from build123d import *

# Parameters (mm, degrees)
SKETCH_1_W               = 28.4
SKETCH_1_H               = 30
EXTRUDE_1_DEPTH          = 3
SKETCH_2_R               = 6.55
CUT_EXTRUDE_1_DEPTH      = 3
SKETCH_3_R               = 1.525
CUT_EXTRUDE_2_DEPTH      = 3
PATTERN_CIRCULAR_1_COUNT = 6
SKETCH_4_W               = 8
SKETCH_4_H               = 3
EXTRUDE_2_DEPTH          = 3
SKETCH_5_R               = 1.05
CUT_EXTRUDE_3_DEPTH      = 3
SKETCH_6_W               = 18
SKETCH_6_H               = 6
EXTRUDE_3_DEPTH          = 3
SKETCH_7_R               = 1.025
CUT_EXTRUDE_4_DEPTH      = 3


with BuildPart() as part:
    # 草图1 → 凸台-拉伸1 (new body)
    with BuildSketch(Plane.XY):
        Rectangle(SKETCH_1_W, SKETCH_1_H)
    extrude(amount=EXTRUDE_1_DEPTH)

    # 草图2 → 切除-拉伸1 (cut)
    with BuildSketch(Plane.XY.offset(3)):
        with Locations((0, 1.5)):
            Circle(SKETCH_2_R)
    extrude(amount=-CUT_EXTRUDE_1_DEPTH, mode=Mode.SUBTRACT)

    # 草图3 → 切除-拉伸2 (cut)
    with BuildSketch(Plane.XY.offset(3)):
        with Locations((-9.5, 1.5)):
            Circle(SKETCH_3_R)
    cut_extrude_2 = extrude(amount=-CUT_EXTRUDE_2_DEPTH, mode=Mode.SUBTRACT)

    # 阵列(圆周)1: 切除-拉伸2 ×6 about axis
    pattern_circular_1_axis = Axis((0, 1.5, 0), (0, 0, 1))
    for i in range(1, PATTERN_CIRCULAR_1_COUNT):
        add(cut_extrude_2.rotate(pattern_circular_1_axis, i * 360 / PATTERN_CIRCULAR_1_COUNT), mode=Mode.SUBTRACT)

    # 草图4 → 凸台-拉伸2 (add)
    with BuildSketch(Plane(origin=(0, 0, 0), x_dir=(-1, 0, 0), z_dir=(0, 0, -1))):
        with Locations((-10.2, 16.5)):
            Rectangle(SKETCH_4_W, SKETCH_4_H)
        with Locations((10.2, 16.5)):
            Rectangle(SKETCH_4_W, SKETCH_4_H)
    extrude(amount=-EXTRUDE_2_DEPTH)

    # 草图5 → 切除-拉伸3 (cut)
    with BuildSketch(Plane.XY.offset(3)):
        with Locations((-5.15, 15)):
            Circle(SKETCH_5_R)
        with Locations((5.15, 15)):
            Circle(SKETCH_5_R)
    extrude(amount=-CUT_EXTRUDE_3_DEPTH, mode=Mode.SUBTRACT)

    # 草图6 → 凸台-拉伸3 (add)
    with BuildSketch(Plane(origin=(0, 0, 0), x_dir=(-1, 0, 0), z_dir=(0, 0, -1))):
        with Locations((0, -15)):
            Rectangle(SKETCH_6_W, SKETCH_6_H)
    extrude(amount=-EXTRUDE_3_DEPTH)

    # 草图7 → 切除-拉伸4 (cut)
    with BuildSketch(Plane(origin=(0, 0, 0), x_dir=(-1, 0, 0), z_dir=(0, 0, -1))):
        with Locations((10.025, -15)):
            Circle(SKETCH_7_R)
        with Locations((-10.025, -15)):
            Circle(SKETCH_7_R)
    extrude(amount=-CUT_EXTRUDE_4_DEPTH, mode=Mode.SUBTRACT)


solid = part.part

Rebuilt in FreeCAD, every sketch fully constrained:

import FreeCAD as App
import Part
import Sketcher
Q = App.Units.Quantity

doc = App.newDocument("Part")
body = doc.addObject("PartDesign::Body", "Body")

sketch1 = body.newObject("Sketcher::SketchObject", "Sketch")
sketch1.AttachmentSupport = (doc.getObject("XY_Plane"), [""])
sketch1.MapMode = "FlatFace"
sketch1.addGeometry([
    Part.LineSegment(App.Vector(-14, 15, 0), App.Vector(-14, -15, 0)),
    Part.LineSegment(App.Vector(-14, -15, 0), App.Vector(14, -15, 0)),
    Part.LineSegment(App.Vector(14, -15, 0), App.Vector(14, 15, 0)),
    Part.LineSegment(App.Vector(14, 15, 0), App.Vector(-14, 15, 0)),
], False)
sketch1.addConstraint([
    Sketcher.Constraint("Coincident", 0, 2, 1, 1),
    Sketcher.Constraint("Coincident", 1, 2, 2, 1),
    Sketcher.Constraint("Coincident", 2, 2, 3, 1),
    Sketcher.Constraint("Coincident", 3, 2, 0, 1),
    Sketcher.Constraint("Vertical", 0),
    Sketcher.Constraint("Horizontal", 1),
    Sketcher.Constraint("Vertical", 2),
    Sketcher.Constraint("Horizontal", 3),
    Sketcher.Constraint("Symmetric", 0, 2, 2, 2, -1, 1),
    Sketcher.Constraint("DistanceY", 0, 2, 0, 1, Q("30 mm")),
    Sketcher.Constraint("DistanceX", 1, 1, 1, 2, Q("28.4 mm")),
])
pad1 = body.newObject("PartDesign::Pad", "Pad")
pad1.Profile = sketch1
pad1.Length = 3

sketch2 = body.newObject("Sketcher::SketchObject", "Sketch001")
sketch2.AttachmentSupport = (doc.getObject("XY_Plane"), [""])
sketch2.MapMode = "FlatFace"
sketch2.AttachmentOffset = App.Placement(App.Vector(0, 0, 3), App.Rotation())
sketch2.addGeometry(Part.Circle(App.Vector(0, 2, 0), App.Vector(0, 0, 1), 7), False)
sketch2.addConstraint([
    Sketcher.Constraint("PointOnObject", 0, 3, -2),
    Sketcher.Constraint("Diameter", 0, Q("13.1 mm")),
    Sketcher.Constraint("DistanceY", -1, 1, 0, 3, Q("1.5 mm")),
])
pocket1 = body.newObject("PartDesign::Pocket", "Pocket")
pocket1.Profile = sketch2
pocket1.Length = 3

sketch3 = body.newObject("Sketcher::SketchObject", "Sketch002")
sketch3.AttachmentSupport = (doc.getObject("XY_Plane"), [""])
sketch3.MapMode = "FlatFace"
sketch3.AttachmentOffset = App.Placement(App.Vector(0, 0, 3), App.Rotation())
sketch3.addGeometry(Part.Circle(App.Vector(-9.5, 1.5, 0), App.Vector(0, 0, 1), 1.5), False)
sketch3.addConstraint([
    Sketcher.Constraint("Diameter", 0, Q("3.05 mm")),
    Sketcher.Constraint("DistanceX", 0, 3, -1, 1, Q("9.5 mm")),
    Sketcher.Constraint("DistanceY", -1, 1, 0, 3, Q("1.5 mm")),
])
pocket2 = body.newObject("PartDesign::Pocket", "Pocket001")
pocket2.Profile = sketch3
pocket2.Length = 3
doc.recompute()

datumline = body.newObject("PartDesign::Line", "DatumLine")
datumline.Placement = App.Placement(App.Vector(0, 1.5, 0), App.Rotation(App.Vector(0, 0, 1), App.Vector(0, 0, 1)))
polarpattern = body.newObject("PartDesign::PolarPattern", "PolarPattern")
polarpattern.Originals = [pocket2]
polarpattern.Axis = (datumline, [""])
polarpattern.Angle = 360
polarpattern.Occurrences = 6
body.Tip = polarpattern

sketch4 = body.newObject("Sketcher::SketchObject", "Sketch003")
sketch4.AttachmentSupport = (doc.getObject("XY_Plane"), [""])
sketch4.MapMode = "FlatFace"
sketch4.addGeometry([
    Part.LineSegment(App.Vector(14.2, 18, 0), App.Vector(14.2, 15, 0)),
    Part.LineSegment(App.Vector(14.2, 15, 0), App.Vector(6.2, 15, 0)),
    Part.LineSegment(App.Vector(6.2, 15, 0), App.Vector(6.2, 18, 0)),
    Part.LineSegment(App.Vector(6.2, 18, 0), App.Vector(14.2, 18, 0)),
    Part.LineSegment(App.Vector(-6.2, 18, 0), App.Vector(-6.2, 15, 0)),
    Part.LineSegment(App.Vector(-6.2, 15, 0), App.Vector(-14.2, 15, 0)),
    Part.LineSegment(App.Vector(-14.2, 15, 0), App.Vector(-14.2, 18, 0)),
    Part.LineSegment(App.Vector(-14.2, 18, 0), App.Vector(-6.2, 18, 0)),
], False)
sketch4.addConstraint([
    Sketcher.Constraint("Coincident", 0, 2, 1, 1),
    Sketcher.Constraint("Coincident", 1, 2, 2, 1),
    Sketcher.Constraint("Coincident", 2, 2, 3, 1),
    Sketcher.Constraint("Coincident", 3, 2, 0, 1),
    Sketcher.Constraint("Coincident", 4, 2, 5, 1),
    Sketcher.Constraint("Coincident", 5, 2, 6, 1),
    Sketcher.Constraint("Coincident", 6, 2, 7, 1),
    Sketcher.Constraint("Coincident", 7, 2, 4, 1),
    Sketcher.Constraint("Vertical", 0),
    Sketcher.Constraint("Horizontal", 1),
    Sketcher.Constraint("Vertical", 2),
    Sketcher.Constraint("Horizontal", 3),
    Sketcher.Constraint("Vertical", 4),
    Sketcher.Constraint("Horizontal", 5),
    Sketcher.Constraint("Vertical", 6),
    Sketcher.Constraint("Horizontal", 7),
    Sketcher.Constraint("Symmetric", 1, 2, 4, 2, -2),
    Sketcher.Constraint("Symmetric", 3, 2, 6, 2, -2),
    Sketcher.Constraint("DistanceX", 1, 2, 1, 1, Q("8 mm")),
    Sketcher.Constraint("DistanceY", 0, 2, 0, 1, Q("3 mm")),
    Sketcher.Constraint("DistanceY", -1, 1, 0, 2, Q("15 mm")),
    Sketcher.Constraint("DistanceX", -1, 1, 0, 2, Q("14.2 mm")),
])
pad2 = body.newObject("PartDesign::Pad", "Pad001")
pad2.Profile = sketch4
pad2.Length = 3

sketch5 = body.newObject("Sketcher::SketchObject", "Sketch004")
sketch5.AttachmentSupport = (doc.getObject("XY_Plane"), [""])
sketch5.MapMode = "FlatFace"
sketch5.AttachmentOffset = App.Placement(App.Vector(0, 0, 3), App.Rotation())
sketch5.addGeometry([
    Part.Circle(App.Vector(-5.2, 15, 0), App.Vector(0, 0, 1), 1.1),
    Part.Circle(App.Vector(5.2, 15, 0), App.Vector(0, 0, 1), 1.1),
], False)
sketch5.addConstraint([
    Sketcher.Constraint("Equal", 0, 1),
    Sketcher.Constraint("Symmetric", 0, 3, 1, 3, -2),
    Sketcher.Constraint("Diameter", 0, Q("2.1 mm")),
    Sketcher.Constraint("DistanceY", -1, 1, 0, 3, Q("15 mm")),
    Sketcher.Constraint("DistanceX", 0, 3, 1, 3, Q("10.3 mm")),
])
pocket3 = body.newObject("PartDesign::Pocket", "Pocket002")
pocket3.Profile = sketch5
pocket3.Length = 3

sketch6 = body.newObject("Sketcher::SketchObject", "Sketch005")
sketch6.AttachmentSupport = (doc.getObject("XY_Plane"), [""])
sketch6.MapMode = "FlatFace"
sketch6.addGeometry([
    Part.LineSegment(App.Vector(9, -12, 0), App.Vector(9, -18, 0)),
    Part.LineSegment(App.Vector(9, -18, 0), App.Vector(-9, -18, 0)),
    Part.LineSegment(App.Vector(-9, -18, 0), App.Vector(-9, -12, 0)),
    Part.LineSegment(App.Vector(-9, -12, 0), App.Vector(9, -12, 0)),
], False)
sketch6.addConstraint([
    Sketcher.Constraint("Coincident", 0, 2, 1, 1),
    Sketcher.Constraint("Coincident", 1, 2, 2, 1),
    Sketcher.Constraint("Coincident", 2, 2, 3, 1),
    Sketcher.Constraint("Coincident", 3, 2, 0, 1),
    Sketcher.Constraint("Vertical", 0),
    Sketcher.Constraint("Horizontal", 1),
    Sketcher.Constraint("Vertical", 2),
    Sketcher.Constraint("Horizontal", 3),
    Sketcher.Constraint("DistanceX", 1, 2, 1, 1, Q("18 mm")),
    Sketcher.Constraint("DistanceY", 0, 2, 0, 1, Q("6 mm")),
    Sketcher.Constraint("DistanceX", -1, 1, 0, 2, Q("9 mm")),
    Sketcher.Constraint("DistanceY", 0, 2, -1, 1, Q("18 mm")),
])
pad3 = body.newObject("PartDesign::Pad", "Pad002")
pad3.Profile = sketch6
pad3.Length = 3

sketch7 = body.newObject("Sketcher::SketchObject", "Sketch006")
sketch7.AttachmentSupport = (doc.getObject("XY_Plane"), [""])
sketch7.MapMode = "FlatFace"
sketch7.addGeometry([
    Part.Circle(App.Vector(-10, -15, 0), App.Vector(0, 0, 1), 1),
    Part.Circle(App.Vector(10, -15, 0), App.Vector(0, 0, 1), 1),
], False)
sketch7.addConstraint([
    Sketcher.Constraint("Equal", 0, 1),
    Sketcher.Constraint("Symmetric", 0, 3, 1, 3, -2),
    Sketcher.Constraint("Diameter", 0, Q("2.05 mm")),
    Sketcher.Constraint("DistanceY", 0, 3, -1, 1, Q("15 mm")),
    Sketcher.Constraint("DistanceX", 0, 3, 1, 3, Q("20.05 mm")),
])
pocket4 = body.newObject("PartDesign::Pocket", "Pocket003")
pocket4.Profile = sketch7
pocket4.Length = 3
pocket4.Reversed = True

doc.recompute()
